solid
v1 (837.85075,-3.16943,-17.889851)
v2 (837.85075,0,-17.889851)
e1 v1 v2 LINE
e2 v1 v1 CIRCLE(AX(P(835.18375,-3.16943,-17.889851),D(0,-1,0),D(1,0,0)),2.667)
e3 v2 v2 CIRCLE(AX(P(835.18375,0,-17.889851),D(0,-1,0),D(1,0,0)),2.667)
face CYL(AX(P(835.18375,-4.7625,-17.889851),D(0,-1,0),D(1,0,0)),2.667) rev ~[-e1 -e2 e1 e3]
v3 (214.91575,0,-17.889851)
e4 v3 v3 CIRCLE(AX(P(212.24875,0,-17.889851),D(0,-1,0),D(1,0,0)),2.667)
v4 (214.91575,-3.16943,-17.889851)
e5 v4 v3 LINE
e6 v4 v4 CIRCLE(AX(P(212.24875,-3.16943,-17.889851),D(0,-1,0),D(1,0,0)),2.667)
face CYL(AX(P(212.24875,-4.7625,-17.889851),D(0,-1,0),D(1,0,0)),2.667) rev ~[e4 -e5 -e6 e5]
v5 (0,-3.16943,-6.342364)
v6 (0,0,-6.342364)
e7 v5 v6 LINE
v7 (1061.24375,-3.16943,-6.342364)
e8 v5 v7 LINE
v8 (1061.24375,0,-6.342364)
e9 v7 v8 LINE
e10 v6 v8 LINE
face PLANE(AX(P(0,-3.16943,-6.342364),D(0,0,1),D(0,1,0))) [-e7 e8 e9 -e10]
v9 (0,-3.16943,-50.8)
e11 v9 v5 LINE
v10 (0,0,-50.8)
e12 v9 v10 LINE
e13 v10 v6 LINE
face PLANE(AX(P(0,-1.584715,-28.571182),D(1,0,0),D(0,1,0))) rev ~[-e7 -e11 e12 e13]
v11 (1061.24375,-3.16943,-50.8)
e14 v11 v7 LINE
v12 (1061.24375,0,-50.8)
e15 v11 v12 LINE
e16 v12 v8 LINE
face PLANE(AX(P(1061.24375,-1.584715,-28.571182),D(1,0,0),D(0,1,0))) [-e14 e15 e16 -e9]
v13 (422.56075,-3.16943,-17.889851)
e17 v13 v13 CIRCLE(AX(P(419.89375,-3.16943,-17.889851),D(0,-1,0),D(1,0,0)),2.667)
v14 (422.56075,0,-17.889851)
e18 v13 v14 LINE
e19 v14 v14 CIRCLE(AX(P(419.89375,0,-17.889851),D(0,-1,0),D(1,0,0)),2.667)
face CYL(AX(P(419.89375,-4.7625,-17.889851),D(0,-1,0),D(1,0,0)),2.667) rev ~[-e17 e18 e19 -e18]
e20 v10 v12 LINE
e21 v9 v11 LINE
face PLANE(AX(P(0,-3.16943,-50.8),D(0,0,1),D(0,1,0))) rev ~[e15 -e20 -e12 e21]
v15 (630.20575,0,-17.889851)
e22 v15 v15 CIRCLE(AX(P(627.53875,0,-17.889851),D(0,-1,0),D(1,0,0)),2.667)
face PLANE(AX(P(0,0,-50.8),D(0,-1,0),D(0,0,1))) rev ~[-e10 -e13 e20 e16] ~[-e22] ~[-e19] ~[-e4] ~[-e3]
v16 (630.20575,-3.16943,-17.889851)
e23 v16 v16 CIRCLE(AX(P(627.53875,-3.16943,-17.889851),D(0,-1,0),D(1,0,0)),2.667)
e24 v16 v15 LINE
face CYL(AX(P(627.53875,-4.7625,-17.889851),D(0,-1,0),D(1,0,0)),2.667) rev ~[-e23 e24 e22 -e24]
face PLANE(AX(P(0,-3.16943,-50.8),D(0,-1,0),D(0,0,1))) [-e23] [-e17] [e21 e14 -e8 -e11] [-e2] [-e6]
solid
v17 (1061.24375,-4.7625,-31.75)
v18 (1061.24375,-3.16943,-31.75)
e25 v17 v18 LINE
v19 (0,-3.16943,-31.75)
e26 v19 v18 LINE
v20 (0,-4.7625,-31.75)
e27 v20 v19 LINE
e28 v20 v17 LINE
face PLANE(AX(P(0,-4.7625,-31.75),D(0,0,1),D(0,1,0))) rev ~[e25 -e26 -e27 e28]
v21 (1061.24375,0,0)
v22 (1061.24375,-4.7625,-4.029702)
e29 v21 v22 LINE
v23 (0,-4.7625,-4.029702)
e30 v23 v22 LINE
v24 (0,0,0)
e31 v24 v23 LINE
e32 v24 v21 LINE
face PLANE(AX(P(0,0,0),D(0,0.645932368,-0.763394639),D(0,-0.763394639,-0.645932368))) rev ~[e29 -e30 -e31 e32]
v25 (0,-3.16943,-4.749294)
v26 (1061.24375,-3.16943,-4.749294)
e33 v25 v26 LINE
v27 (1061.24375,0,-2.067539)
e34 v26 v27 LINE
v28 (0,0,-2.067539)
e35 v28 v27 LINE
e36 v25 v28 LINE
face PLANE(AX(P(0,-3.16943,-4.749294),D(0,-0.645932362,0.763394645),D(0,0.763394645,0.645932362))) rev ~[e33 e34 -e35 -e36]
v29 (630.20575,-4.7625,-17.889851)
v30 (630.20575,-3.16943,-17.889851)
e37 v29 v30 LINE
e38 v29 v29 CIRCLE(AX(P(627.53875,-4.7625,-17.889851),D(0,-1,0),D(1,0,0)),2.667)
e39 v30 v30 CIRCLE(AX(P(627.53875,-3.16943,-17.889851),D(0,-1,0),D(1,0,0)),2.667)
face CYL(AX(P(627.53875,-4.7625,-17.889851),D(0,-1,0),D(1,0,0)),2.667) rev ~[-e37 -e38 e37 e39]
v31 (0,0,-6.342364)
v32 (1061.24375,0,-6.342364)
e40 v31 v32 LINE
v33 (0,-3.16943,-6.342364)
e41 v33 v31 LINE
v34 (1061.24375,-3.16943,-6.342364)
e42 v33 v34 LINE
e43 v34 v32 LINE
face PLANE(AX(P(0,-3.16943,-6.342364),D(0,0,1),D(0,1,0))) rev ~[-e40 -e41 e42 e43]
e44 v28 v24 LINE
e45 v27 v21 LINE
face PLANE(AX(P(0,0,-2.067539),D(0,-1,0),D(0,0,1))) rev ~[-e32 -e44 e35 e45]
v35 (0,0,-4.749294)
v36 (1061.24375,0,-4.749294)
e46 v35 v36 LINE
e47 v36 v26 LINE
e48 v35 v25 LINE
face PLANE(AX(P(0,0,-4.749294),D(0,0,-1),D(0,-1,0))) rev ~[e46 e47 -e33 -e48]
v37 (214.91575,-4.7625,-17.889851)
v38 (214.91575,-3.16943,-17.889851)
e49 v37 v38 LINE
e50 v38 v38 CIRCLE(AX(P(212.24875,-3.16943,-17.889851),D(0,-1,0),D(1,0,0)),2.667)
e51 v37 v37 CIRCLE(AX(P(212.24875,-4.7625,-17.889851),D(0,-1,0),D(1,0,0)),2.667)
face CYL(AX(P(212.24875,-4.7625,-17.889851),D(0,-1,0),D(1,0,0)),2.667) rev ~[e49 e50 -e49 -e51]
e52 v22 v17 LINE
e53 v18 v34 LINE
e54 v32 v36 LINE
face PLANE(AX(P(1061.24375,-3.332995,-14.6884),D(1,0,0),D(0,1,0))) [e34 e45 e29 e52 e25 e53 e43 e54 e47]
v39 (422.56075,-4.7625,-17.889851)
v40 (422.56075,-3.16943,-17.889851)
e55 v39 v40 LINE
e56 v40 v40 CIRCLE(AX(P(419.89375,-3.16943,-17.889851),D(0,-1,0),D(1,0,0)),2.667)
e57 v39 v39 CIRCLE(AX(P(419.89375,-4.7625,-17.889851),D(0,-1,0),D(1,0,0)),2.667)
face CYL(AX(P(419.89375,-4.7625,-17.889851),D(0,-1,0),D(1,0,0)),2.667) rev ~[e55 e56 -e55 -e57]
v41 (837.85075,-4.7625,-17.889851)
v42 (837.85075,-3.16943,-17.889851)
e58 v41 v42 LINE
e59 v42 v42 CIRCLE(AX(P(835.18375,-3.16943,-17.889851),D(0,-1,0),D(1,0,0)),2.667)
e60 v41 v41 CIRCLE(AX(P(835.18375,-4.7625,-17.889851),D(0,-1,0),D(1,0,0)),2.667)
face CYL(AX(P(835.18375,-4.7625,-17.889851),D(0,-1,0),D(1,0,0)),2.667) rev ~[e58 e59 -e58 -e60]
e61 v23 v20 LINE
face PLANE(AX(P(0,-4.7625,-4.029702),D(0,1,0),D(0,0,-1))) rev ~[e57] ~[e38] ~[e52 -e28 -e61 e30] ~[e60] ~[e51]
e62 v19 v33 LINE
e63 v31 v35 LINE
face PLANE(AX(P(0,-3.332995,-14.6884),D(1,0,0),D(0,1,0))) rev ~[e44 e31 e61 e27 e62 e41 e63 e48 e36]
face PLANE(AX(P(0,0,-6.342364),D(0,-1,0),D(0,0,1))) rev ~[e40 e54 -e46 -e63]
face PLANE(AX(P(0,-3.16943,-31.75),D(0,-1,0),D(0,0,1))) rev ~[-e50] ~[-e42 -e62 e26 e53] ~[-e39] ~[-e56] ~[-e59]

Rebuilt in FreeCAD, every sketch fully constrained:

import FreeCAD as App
import Part
import Sketcher
Q = App.Units.Quantity


def add_polygon(sketch, points):
    """Adds a closed chain of lines whose ends are joined by coincident constraints."""
    first, n = sketch.GeometryCount, len(points)
    for a, b in zip(points, points[1:] + points[:1]):
        sketch.addGeometry(Part.LineSegment(App.Vector(*a, 0), App.Vector(*b, 0)), False)
    for i in range(n):
        sketch.addConstraint(Sketcher.Constraint("Coincident", first + i, 2, first + (i + 1) % n, 1))

doc = App.newDocument("Part")
body = doc.addObject("PartDesign::Body", "Body")

# Sketch on YZ plane
sketch1 = body.newObject("Sketcher::SketchObject", "Sketch")
sketch1.AttachmentSupport = (doc.getObject("YZ_Plane"), [""])
sketch1.MapMode = "FlatFace"
add_polygon(sketch1, [(0, -2.1), (0, 0), (-4.8, -4), (-4.8, -31.8), (-3.2, -31.8), (-3.2, -6.3), (0, -6.3), (0, -4.7), (-3.2, -4.7)])  # lines 0-8
sketch1.addConstraint(Sketcher.Constraint("Vertical", 0))
sketch1.addConstraint(Sketcher.Constraint("Vertical", 2))
sketch1.addConstraint(Sketcher.Constraint("Horizontal", 3))
sketch1.addConstraint(Sketcher.Constraint("Vertical", 4))
sketch1.addConstraint(Sketcher.Constraint("Horizontal", 5))
sketch1.addConstraint(Sketcher.Constraint("Vertical", 6))
sketch1.addConstraint(Sketcher.Constraint("Horizontal", 7))
sketch1.addConstraint(Sketcher.Constraint("Coincident", 0, 2, -1, 1))
sketch1.addConstraint(Sketcher.Constraint("PointOnObject", 5, 2, -2))
sketch1.addConstraint(Sketcher.Constraint("Parallel", 1, 8))
sketch1.addConstraint(Sketcher.Constraint("Vertical", 4, 2, 7, 2))
sketch1.addConstraint(Sketcher.Constraint("Equal", 3, 6))
sketch1.addConstraint(Sketcher.Constraint("DistanceY", 2, 2, -1, 1, Q("1.25 in")))
sketch1.addConstraint(Sketcher.Constraint("DistanceX", 1, 2, -1, 1, Q("0.1875 in")))
sketch1.addConstraint(Sketcher.Constraint("DistanceY", 5, 2, 8, 2, Q("0.1683002 in")))
sketch1.addConstraint(Sketcher.Constraint("DistanceX", 3, 1, 3, 2, Q("1.59307 mm")))
sketch1.addConstraint(Sketcher.Constraint("DistanceY", 0, 1, 0, 2, Q("2.067539 mm")))
pad1 = body.newObject("PartDesign::Pad", "Pad")
pad1.Profile = sketch1
pad1.Length = Q("41.78125 in")
body2 = doc.addObject("PartDesign::Body", "Body001")

# Sketch on YZ plane
sketch2 = body2.newObject("Sketcher::SketchObject", "Sketch001")
sketch2.AttachmentSupport = (doc.getObject("YZ_Plane001"), [""])
sketch2.MapMode = "FlatFace"
add_polygon(sketch2, [(-3.2, -6.3), (-3.2, -50.8), (0, -50.8), (0, -6.3)])  # lines 0-3
sketch2.addConstraint(Sketcher.Constraint("Vertical", 0))
sketch2.addConstraint(Sketcher.Constraint("Horizontal", 1))
sketch2.addConstraint(Sketcher.Constraint("Vertical", 2))
sketch2.addConstraint(Sketcher.Constraint("Horizontal", 3))
sketch2.addConstraint(Sketcher.Constraint("PointOnObject", 1, 2, -2))
sketch2.addConstraint(Sketcher.Constraint("DistanceY", 0, 2, -1, 1, Q("2 in")))
sketch2.addConstraint(Sketcher.Constraint("DistanceX", 1, 1, 1, 2, Q("3.16943 mm")))
sketch2.addConstraint(Sketcher.Constraint("DistanceY", 0, 2, 0, 1, Q("44.457636 mm")))
pad2 = body2.newObject("PartDesign::Pad", "Pad001")
pad2.Profile = sketch2
pad2.Length = Q("41.78125 in")
body3 = doc.addObject("PartDesign::Body", "Body002")
body3.AllowCompound = True

# Sketch on XZ plane
sketch3 = body3.newObject("Sketcher::SketchObject", "Sketch002")
sketch3.AttachmentSupport = (doc.getObject("XZ_Plane002"), [""])
sketch3.MapMode = "FlatFace"
sketch3.AttachmentOffset = App.Placement(App.Vector(0, 0, 0.1875 * 25.4), App.Rotation())
sketch3.addGeometry(Part.Circle(App.Vector(212.2, -17.9, 0), App.Vector(0, 0, 1), 2.7), False)
sketch3.addGeometry(Part.Circle(App.Vector(419.9, -17.9, 0), App.Vector(0, 0, 1), 2.7), False)
sketch3.addGeometry(Part.Circle(App.Vector(627.5, -17.9, 0), App.Vector(0, 0, 1), 2.7), False)
sketch3.addGeometry(Part.Circle(App.Vector(835.2, -17.9, 0), App.Vector(0, 0, 1), 2.7), False)
sketch3.addConstraint(Sketcher.Constraint("Equal", 0, 1))
sketch3.addConstraint(Sketcher.Constraint("Equal", 1, 2))
sketch3.addConstraint(Sketcher.Constraint("Equal", 2, 3))
sketch3.addConstraint(Sketcher.Constraint("Horizontal", 0, 3, 1, 3))
sketch3.addConstraint(Sketcher.Constraint("Horizontal", 1, 3, 2, 3))
sketch3.addConstraint(Sketcher.Constraint("Horizontal", 2, 3, 3, 3))
sketch3.addConstraint(Sketcher.Constraint("Diameter", 0, Q("0.21 in")))
sketch3.addConstraint(Sketcher.Constraint("DistanceX", 0, 3, 2, 3, Q("16.35 in")))
sketch3.addConstraint(Sketcher.Constraint("DistanceX", 1, 3, 3, 3, Q("16.35 in")))
sketch3.addConstraint(Sketcher.Constraint("DistanceX", -1, 1, 1, 3, Q("16.53125 in")))
sketch3.addConstraint(Sketcher.Constraint("DistanceX", 0, 3, 1, 3, Q("8.175 in")))
sketch3.addConstraint(Sketcher.Constraint("DistanceY", 0, 3, -1, 1, Q("17.889851 mm")))
pad3 = body3.newObject("PartDesign::Pad", "Pad002")
pad3.Profile = sketch3
pad3.Length = 4.7635
pad3.Reversed = True
doc.recompute()

body4 = doc.addObject("PartDesign::Body", "Body003")
body4.BaseFeature = body3
boolean = body.newObject("PartDesign::Boolean", "Boolean")
boolean.Type = "Cut"
boolean.addObjects([body4])
doc.recompute()

boolean2 = body2.newObject("PartDesign::Boolean", "Boolean001")
boolean2.Type = "Cut"
boolean2.addObjects([body3])

doc.recompute()
